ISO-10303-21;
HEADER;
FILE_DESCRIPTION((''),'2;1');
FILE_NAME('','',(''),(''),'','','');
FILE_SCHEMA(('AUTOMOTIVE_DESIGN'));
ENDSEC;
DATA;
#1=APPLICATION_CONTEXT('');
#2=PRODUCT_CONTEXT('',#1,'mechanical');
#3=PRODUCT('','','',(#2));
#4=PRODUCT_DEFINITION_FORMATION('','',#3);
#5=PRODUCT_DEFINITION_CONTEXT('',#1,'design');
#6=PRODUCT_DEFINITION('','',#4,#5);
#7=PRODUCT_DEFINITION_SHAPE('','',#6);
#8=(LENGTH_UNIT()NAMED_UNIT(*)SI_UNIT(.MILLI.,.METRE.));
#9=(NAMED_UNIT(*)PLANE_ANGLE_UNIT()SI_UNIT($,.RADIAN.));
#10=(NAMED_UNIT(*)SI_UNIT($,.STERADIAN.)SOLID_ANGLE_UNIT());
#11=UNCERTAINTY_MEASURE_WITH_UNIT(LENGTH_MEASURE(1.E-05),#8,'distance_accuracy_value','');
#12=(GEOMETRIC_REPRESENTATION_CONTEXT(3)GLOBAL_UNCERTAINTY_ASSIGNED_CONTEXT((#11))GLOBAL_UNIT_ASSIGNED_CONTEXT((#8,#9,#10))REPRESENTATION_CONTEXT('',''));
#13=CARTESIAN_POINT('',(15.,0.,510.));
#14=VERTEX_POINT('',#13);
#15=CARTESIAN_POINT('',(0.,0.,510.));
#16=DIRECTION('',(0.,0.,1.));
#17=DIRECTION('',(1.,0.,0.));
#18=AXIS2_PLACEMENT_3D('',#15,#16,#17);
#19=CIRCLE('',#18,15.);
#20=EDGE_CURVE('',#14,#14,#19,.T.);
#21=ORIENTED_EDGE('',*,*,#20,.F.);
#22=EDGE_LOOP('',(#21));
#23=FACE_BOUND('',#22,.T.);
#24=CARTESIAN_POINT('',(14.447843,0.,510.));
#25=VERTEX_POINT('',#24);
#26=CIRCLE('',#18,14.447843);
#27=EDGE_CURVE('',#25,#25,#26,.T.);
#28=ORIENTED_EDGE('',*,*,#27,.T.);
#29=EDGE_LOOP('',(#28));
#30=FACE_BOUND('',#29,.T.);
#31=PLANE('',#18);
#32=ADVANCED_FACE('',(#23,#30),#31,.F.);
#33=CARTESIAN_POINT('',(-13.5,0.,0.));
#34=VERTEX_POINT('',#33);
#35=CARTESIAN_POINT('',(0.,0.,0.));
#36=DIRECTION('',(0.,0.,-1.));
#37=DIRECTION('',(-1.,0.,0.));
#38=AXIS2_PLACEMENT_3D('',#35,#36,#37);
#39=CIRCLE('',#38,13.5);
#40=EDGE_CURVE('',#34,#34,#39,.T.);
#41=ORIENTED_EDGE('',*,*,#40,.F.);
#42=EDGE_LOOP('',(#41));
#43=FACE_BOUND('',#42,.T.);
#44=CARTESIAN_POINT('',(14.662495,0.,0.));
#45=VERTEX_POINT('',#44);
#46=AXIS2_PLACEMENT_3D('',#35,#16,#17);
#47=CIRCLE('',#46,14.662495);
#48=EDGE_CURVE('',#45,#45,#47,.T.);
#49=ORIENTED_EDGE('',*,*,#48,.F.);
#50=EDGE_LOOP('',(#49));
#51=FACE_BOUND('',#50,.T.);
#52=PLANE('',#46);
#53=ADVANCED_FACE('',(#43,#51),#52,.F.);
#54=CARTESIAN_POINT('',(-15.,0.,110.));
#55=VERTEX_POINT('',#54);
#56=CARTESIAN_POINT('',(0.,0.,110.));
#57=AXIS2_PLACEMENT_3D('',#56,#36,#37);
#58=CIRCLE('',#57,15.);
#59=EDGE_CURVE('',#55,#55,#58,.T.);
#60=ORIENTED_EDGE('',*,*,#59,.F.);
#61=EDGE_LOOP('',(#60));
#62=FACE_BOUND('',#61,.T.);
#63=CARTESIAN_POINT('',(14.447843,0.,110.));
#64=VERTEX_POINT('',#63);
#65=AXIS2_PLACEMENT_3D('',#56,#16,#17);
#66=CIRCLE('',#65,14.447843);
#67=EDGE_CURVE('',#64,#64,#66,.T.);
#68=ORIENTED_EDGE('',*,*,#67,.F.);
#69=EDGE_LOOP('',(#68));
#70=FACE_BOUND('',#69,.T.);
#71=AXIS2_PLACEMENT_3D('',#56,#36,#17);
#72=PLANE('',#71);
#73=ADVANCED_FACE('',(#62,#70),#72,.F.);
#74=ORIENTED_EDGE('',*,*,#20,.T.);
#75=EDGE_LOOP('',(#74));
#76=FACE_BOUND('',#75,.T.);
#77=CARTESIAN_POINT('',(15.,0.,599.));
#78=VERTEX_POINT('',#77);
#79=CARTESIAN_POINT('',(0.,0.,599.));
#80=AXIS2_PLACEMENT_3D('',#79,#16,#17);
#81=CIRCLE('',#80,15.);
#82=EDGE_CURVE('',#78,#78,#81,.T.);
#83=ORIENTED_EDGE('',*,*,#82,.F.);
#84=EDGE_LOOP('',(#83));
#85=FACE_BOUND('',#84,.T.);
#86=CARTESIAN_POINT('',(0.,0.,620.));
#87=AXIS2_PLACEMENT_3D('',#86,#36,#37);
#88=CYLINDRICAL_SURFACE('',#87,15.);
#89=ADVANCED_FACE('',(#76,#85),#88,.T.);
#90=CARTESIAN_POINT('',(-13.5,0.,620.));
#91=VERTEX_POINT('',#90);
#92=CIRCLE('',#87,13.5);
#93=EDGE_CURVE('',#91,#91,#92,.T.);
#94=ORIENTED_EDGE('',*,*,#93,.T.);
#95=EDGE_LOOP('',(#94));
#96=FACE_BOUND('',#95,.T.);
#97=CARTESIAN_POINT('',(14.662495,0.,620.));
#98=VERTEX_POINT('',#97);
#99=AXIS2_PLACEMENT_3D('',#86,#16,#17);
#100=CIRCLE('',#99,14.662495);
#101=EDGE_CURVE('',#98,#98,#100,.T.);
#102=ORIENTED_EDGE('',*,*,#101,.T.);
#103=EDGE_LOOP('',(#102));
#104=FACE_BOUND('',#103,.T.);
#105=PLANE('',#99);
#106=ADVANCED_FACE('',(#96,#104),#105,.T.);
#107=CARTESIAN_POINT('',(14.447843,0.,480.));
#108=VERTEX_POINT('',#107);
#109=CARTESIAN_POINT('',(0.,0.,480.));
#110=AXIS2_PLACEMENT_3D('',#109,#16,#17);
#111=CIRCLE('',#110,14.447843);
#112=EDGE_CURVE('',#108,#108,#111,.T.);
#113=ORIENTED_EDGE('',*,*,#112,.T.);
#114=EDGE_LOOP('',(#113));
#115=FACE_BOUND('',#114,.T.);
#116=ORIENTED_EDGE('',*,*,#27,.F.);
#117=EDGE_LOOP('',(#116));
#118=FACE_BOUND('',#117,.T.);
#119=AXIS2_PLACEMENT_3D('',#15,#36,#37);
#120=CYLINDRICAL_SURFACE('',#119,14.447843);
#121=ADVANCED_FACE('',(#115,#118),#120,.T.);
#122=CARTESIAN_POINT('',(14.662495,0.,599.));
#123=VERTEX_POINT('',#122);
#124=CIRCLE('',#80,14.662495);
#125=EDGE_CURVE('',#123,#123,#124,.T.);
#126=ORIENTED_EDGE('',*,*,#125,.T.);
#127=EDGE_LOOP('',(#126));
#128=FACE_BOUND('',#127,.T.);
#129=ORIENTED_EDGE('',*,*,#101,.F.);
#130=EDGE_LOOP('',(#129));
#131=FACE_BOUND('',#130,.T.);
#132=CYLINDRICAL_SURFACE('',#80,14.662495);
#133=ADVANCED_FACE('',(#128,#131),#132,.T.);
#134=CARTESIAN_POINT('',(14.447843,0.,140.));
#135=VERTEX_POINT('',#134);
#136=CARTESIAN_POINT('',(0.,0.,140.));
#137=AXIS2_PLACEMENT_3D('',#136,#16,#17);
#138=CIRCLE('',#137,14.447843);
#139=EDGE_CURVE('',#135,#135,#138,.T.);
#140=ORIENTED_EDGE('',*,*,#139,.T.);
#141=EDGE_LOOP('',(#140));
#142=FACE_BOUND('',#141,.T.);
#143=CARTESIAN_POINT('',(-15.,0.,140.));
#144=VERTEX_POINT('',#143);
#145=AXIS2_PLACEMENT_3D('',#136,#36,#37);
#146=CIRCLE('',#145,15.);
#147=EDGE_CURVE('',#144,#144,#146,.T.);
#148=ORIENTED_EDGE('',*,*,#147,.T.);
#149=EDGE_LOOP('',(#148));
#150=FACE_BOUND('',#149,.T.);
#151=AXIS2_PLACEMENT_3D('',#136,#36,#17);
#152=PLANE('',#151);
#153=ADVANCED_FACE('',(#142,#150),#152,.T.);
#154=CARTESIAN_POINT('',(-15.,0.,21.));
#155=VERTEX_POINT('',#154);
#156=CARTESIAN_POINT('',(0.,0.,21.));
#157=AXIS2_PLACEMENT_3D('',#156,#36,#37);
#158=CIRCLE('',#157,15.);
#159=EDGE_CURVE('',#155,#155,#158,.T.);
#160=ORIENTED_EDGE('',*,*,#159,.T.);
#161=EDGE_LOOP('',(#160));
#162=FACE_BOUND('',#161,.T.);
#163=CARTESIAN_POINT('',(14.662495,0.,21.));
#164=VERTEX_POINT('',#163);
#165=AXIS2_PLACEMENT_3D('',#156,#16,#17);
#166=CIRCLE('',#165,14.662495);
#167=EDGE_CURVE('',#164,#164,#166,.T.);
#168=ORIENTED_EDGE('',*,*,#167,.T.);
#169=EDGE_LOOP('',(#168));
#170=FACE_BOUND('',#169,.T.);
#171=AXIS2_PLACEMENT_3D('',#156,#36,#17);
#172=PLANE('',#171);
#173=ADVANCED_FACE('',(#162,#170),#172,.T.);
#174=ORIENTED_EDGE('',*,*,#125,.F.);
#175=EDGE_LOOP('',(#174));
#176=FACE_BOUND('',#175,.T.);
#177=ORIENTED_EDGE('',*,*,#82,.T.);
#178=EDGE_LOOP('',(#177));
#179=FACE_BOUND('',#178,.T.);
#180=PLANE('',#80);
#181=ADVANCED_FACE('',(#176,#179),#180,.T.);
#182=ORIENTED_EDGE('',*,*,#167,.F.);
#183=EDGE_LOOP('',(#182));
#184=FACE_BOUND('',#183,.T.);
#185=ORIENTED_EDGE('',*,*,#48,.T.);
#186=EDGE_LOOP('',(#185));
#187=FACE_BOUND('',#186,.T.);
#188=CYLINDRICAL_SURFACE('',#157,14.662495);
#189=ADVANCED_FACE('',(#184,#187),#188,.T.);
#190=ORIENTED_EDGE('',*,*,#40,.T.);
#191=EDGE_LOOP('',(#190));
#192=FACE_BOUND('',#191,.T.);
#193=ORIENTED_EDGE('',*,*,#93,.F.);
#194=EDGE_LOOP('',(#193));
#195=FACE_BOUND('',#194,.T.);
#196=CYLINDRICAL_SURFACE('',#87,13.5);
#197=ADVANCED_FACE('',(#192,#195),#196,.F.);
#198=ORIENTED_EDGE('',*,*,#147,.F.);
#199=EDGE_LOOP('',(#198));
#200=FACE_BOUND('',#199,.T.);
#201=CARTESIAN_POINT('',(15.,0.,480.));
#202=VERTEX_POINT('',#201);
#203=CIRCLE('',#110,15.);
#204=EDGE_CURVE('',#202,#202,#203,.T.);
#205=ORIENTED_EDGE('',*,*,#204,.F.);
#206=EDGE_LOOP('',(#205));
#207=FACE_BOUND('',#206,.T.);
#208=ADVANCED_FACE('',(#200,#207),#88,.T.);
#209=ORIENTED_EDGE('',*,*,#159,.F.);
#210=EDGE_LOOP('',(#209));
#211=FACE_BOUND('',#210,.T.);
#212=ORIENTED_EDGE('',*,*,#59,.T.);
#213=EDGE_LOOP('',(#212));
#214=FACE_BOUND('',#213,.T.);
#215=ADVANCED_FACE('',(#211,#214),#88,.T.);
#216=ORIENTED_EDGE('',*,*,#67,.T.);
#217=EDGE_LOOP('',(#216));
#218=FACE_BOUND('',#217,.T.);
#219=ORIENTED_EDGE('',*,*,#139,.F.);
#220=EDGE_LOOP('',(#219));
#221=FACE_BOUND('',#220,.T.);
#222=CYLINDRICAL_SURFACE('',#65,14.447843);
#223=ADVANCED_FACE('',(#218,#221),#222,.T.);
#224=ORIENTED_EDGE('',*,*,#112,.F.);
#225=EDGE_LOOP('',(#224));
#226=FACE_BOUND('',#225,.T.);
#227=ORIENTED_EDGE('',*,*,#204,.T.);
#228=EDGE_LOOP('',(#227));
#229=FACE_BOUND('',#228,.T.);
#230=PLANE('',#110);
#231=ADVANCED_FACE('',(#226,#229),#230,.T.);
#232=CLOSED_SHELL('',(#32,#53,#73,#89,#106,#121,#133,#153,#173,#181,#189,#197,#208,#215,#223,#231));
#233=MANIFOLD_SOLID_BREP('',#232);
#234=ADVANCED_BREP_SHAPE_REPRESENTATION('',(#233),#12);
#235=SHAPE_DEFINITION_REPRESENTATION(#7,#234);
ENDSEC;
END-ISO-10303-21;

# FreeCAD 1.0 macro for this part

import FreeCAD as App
import Part
import Sketcher
from FreeCAD import Vector
Q = App.Units.Quantity

doc = App.newDocument("Part")
params = doc.addObject("Spreadsheet::Sheet", "Params")
for row, (alias, value) in enumerate([
    ("sketch1_diameter", "30 mm"),
    ("pad1_length", "620 mm"),
    ("sketch2_diameter", "27 mm"),
    ("pocket2_length", "30 mm"),
    ("pocket3_length", "21 mm"),
], start=1):
    params.set(f"A{row}", alias)
    params.set(f"B{row}", "=" + value)
    params.setAlias(f"B{row}", alias)

body = doc.addObject("PartDesign::Body", "Body")

# Sketch on XY plane
sketch1 = body.newObject("Sketcher::SketchObject", "Sketch")
sketch1.AttachmentSupport = (doc.getObject("XY_Plane"), [""])
sketch1.MapMode = "FlatFace"
sketch1.addGeometry(Part.Circle(Vector(0, 0, 0), Vector(0, 0, 1), 15), False)
sketch1.addConstraint(Sketcher.Constraint("Coincident", 0, 3, -1, 1))
sketch1.addConstraint(Sketcher.Constraint("Diameter", 0, Q("30 mm")))
sketch1.setExpression("Constraints[1]", "Params.sketch1_diameter")
pad1 = body.newObject("PartDesign::Pad", "Pad")
pad1.Profile = sketch1
pad1.setExpression("Length", "Params.pad1_length")

# Sketch on XY plane
sketch2 = body.newObject("Sketcher::SketchObject", "Sketch001")
sketch2.AttachmentSupport = (doc.getObject("XY_Plane"), [""])
sketch2.MapMode = "FlatFace"
sketch2.addGeometry(Part.Circle(Vector(0, 0, 0), Vector(0, 0, 1), 14), False)
sketch2.addConstraint(Sketcher.Constraint("Coincident", 0, 3, -1, 1))
sketch2.addConstraint(Sketcher.Constraint("Diameter", 0, Q("27 mm")))
sketch2.setExpression("Constraints[1]", "Params.sketch2_diameter")
pocket1 = body.newObject("PartDesign::Pocket", "Pocket")
pocket1.Profile = sketch2
pocket1.Type = "ThroughAll"
pocket1.Reversed = True

# Sketch on XY plane
sketch3 = body.newObject("Sketcher::SketchObject", "Sketch002")
sketch3.AttachmentSupport = (doc.getObject("XY_Plane"), [""])
sketch3.MapMode = "FlatFace"
sketch3.AttachmentOffset = App.Placement(Vector(0, 0, 480), App.Rotation())
sketch3.addGeometry(Part.Circle(Vector(0, 0, 0), Vector(0, 0, 1), 16), False)
sketch3.addGeometry(Part.Circle(Vector(0, 0, 0), Vector(0, 0, 1), 14), False)
sketch3.addConstraint(Sketcher.Constraint("Coincident", 0, 3, -1, 1))
sketch3.addConstraint(Sketcher.Constraint("Coincident", 1, 3, -1, 1))
sketch3.addConstraint(Sketcher.Constraint("Diameter", 0, Q("32.534736 mm")))
sketch3.addConstraint(Sketcher.Constraint("Diameter", 1, Q("28.895687 mm")))
pocket2 = body.newObject("PartDesign::Pocket", "Pocket001")
pocket2.Profile = sketch3
pocket2.setExpression("Length", "Params.pocket2_length")
pocket2.Reversed = True
doc.recompute()

datumplane = body.newObject("PartDesign::Plane", "DatumPlane")
datumplane.AttachmentSupport = (doc.getObject("XY_Plane"), [""])
datumplane.MapMode = "FlatFace"
datumplane.AttachmentOffset = App.Placement(Vector(0, 0, 310), App.Rotation())
mirrored = body.newObject("PartDesign::Mirrored", "Mirrored")
mirrored.Originals = [pocket2]
mirrored.MirrorPlane = (datumplane, [""])
body.Tip = mirrored

# Sketch on XY plane
sketch4 = body.newObject("Sketcher::SketchObject", "Sketch003")
sketch4.AttachmentSupport = (doc.getObject("XY_Plane"), [""])
sketch4.MapMode = "FlatFace"
sketch4.AttachmentOffset = App.Placement(Vector(0, 0, 620), App.Rotation())
sketch4.addGeometry(Part.Circle(Vector(0, 0, 0), Vector(0, 0, 1), 16), False)
sketch4.addGeometry(Part.Circle(Vector(0, 0, 0), Vector(0, 0, 1), 15), False)
sketch4.addConstraint(Sketcher.Constraint("Coincident", 0, 3, -1, 1))
sketch4.addConstraint(Sketcher.Constraint("Coincident", 1, 3, -1, 1))
sketch4.addConstraint(Sketcher.Constraint("Diameter", 0, Q("32.38665 mm")))
sketch4.addConstraint(Sketcher.Constraint("Diameter", 1, Q("29.324991 mm")))
pocket3 = body.newObject("PartDesign::Pocket", "Pocket002")
pocket3.Profile = sketch4
pocket3.setExpression("Length", "Params.pocket3_length")
doc.recompute()

datumplane2 = body.newObject("PartDesign::Plane", "DatumPlane001")
datumplane2.AttachmentSupport = (doc.getObject("XY_Plane"), [""])
datumplane2.MapMode = "FlatFace"
datumplane2.AttachmentOffset = App.Placement(Vector(0, 0, 310), App.Rotation())
mirrored2 = body.newObject("PartDesign::Mirrored", "Mirrored001")
mirrored2.Originals = [pocket3]
mirrored2.MirrorPlane = (datumplane2, [""])
body.Tip = mirrored2

doc.recompute()
